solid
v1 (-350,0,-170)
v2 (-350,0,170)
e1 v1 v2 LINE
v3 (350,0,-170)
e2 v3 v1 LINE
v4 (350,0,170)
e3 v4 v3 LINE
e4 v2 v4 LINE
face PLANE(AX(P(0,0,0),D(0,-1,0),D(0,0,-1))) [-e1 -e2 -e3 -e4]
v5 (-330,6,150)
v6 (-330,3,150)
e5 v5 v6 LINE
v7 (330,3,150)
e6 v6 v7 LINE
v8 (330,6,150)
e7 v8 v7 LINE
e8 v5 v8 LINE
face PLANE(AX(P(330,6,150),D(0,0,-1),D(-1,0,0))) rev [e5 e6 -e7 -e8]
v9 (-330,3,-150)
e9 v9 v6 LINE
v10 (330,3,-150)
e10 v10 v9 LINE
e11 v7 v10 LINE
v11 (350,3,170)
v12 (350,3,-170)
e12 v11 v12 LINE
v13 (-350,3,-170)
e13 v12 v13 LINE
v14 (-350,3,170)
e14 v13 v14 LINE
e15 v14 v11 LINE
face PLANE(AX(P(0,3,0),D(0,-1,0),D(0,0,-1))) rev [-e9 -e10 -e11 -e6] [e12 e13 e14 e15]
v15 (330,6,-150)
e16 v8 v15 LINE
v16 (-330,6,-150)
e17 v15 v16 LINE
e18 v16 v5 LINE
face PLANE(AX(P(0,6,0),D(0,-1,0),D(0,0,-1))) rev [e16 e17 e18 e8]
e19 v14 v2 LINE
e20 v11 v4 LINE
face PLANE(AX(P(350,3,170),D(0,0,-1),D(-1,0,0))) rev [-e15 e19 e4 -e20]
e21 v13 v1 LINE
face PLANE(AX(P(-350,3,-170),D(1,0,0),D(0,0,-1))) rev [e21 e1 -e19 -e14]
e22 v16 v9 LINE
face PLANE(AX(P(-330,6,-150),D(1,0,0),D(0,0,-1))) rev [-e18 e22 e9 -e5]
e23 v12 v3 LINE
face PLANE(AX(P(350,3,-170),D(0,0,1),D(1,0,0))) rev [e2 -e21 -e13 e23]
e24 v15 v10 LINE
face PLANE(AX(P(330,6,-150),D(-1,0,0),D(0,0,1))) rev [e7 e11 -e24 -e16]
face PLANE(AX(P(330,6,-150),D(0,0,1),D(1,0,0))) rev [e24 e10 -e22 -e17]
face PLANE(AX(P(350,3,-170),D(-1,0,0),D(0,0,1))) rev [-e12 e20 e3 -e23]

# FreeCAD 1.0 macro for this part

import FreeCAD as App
import Part
import Sketcher
from FreeCAD import Vector
Q = App.Units.Quantity

doc = App.newDocument("Part")
body = doc.addObject("PartDesign::Body", "Body")

# Sketch on XZ plane
sketch1 = body.newObject("Sketcher::SketchObject", "Sketch")
sketch1.AttachmentSupport = (doc.getObject("XZ_Plane"), [""])
sketch1.MapMode = "FlatFace"
sketch1.addGeometry([
    Part.LineSegment(Vector(-350, -170, 0), Vector(-350, 170, 0)),
    Part.LineSegment(Vector(-350, 170, 0), Vector(350, 170, 0)),
    Part.LineSegment(Vector(350, 170, 0), Vector(350, -170, 0)),
    Part.LineSegment(Vector(350, -170, 0), Vector(-350, -170, 0)),
], False)
sketch1.addConstraint([
    Sketcher.Constraint("Coincident", 0, 2, 1, 1),
    Sketcher.Constraint("Coincident", 1, 2, 2, 1),
    Sketcher.Constraint("Coincident", 2, 2, 3, 1),
    Sketcher.Constraint("Coincident", 3, 2, 0, 1),
    Sketcher.Constraint("Vertical", 0),
    Sketcher.Constraint("Horizontal", 1),
    Sketcher.Constraint("Vertical", 2),
    Sketcher.Constraint("Horizontal", 3),
    Sketcher.Constraint("Symmetric", 0, 2, 2, 2, -1, 1),
    Sketcher.Constraint("DistanceX", 1, 1, 1, 2, Q("700 mm")),
    Sketcher.Constraint("DistanceY", 0, 1, 0, 2, Q("340 mm")),
])
pad1 = body.newObject("PartDesign::Pad", "Pad")
pad1.Profile = sketch1
pad1.Length = 3
pad1.Reversed = True

# Sketch on XZ plane
sketch2 = body.newObject("Sketcher::SketchObject", "Sketch001")
sketch2.AttachmentSupport = (doc.getObject("XZ_Plane"), [""])
sketch2.MapMode = "FlatFace"
sketch2.AttachmentOffset = App.Placement(Vector(0, 0, -3), App.Rotation())
sketch2.addGeometry([
    Part.LineSegment(Vector(-330, -150, 0), Vector(-330, 150, 0)),
    Part.LineSegment(Vector(-330, 150, 0), Vector(330, 150, 0)),
    Part.LineSegment(Vector(330, 150, 0), Vector(330, -150, 0)),
    Part.LineSegment(Vector(330, -150, 0), Vector(-330, -150, 0)),
], False)
sketch2.addConstraint([
    Sketcher.Constraint("Coincident", 0, 2, 1, 1),
    Sketcher.Constraint("Coincident", 1, 2, 2, 1),
    Sketcher.Constraint("Coincident", 2, 2, 3, 1),
    Sketcher.Constraint("Coincident", 3, 2, 0, 1),
    Sketcher.Constraint("Vertical", 0),
    Sketcher.Constraint("Horizontal", 1),
    Sketcher.Constraint("Vertical", 2),
    Sketcher.Constraint("Horizontal", 3),
    Sketcher.Constraint("Symmetric", 0, 2, 2, 2, -1, 1),
    Sketcher.Constraint("DistanceX", 1, 1, 1, 2, Q("660 mm")),
    Sketcher.Constraint("DistanceY", 0, 1, 0, 2, Q("300 mm")),
])
pad2 = body.newObject("PartDesign::Pad", "Pad001")
pad2.Profile = sketch2
pad2.Length = 3
pad2.Reversed = True

doc.recompute()
